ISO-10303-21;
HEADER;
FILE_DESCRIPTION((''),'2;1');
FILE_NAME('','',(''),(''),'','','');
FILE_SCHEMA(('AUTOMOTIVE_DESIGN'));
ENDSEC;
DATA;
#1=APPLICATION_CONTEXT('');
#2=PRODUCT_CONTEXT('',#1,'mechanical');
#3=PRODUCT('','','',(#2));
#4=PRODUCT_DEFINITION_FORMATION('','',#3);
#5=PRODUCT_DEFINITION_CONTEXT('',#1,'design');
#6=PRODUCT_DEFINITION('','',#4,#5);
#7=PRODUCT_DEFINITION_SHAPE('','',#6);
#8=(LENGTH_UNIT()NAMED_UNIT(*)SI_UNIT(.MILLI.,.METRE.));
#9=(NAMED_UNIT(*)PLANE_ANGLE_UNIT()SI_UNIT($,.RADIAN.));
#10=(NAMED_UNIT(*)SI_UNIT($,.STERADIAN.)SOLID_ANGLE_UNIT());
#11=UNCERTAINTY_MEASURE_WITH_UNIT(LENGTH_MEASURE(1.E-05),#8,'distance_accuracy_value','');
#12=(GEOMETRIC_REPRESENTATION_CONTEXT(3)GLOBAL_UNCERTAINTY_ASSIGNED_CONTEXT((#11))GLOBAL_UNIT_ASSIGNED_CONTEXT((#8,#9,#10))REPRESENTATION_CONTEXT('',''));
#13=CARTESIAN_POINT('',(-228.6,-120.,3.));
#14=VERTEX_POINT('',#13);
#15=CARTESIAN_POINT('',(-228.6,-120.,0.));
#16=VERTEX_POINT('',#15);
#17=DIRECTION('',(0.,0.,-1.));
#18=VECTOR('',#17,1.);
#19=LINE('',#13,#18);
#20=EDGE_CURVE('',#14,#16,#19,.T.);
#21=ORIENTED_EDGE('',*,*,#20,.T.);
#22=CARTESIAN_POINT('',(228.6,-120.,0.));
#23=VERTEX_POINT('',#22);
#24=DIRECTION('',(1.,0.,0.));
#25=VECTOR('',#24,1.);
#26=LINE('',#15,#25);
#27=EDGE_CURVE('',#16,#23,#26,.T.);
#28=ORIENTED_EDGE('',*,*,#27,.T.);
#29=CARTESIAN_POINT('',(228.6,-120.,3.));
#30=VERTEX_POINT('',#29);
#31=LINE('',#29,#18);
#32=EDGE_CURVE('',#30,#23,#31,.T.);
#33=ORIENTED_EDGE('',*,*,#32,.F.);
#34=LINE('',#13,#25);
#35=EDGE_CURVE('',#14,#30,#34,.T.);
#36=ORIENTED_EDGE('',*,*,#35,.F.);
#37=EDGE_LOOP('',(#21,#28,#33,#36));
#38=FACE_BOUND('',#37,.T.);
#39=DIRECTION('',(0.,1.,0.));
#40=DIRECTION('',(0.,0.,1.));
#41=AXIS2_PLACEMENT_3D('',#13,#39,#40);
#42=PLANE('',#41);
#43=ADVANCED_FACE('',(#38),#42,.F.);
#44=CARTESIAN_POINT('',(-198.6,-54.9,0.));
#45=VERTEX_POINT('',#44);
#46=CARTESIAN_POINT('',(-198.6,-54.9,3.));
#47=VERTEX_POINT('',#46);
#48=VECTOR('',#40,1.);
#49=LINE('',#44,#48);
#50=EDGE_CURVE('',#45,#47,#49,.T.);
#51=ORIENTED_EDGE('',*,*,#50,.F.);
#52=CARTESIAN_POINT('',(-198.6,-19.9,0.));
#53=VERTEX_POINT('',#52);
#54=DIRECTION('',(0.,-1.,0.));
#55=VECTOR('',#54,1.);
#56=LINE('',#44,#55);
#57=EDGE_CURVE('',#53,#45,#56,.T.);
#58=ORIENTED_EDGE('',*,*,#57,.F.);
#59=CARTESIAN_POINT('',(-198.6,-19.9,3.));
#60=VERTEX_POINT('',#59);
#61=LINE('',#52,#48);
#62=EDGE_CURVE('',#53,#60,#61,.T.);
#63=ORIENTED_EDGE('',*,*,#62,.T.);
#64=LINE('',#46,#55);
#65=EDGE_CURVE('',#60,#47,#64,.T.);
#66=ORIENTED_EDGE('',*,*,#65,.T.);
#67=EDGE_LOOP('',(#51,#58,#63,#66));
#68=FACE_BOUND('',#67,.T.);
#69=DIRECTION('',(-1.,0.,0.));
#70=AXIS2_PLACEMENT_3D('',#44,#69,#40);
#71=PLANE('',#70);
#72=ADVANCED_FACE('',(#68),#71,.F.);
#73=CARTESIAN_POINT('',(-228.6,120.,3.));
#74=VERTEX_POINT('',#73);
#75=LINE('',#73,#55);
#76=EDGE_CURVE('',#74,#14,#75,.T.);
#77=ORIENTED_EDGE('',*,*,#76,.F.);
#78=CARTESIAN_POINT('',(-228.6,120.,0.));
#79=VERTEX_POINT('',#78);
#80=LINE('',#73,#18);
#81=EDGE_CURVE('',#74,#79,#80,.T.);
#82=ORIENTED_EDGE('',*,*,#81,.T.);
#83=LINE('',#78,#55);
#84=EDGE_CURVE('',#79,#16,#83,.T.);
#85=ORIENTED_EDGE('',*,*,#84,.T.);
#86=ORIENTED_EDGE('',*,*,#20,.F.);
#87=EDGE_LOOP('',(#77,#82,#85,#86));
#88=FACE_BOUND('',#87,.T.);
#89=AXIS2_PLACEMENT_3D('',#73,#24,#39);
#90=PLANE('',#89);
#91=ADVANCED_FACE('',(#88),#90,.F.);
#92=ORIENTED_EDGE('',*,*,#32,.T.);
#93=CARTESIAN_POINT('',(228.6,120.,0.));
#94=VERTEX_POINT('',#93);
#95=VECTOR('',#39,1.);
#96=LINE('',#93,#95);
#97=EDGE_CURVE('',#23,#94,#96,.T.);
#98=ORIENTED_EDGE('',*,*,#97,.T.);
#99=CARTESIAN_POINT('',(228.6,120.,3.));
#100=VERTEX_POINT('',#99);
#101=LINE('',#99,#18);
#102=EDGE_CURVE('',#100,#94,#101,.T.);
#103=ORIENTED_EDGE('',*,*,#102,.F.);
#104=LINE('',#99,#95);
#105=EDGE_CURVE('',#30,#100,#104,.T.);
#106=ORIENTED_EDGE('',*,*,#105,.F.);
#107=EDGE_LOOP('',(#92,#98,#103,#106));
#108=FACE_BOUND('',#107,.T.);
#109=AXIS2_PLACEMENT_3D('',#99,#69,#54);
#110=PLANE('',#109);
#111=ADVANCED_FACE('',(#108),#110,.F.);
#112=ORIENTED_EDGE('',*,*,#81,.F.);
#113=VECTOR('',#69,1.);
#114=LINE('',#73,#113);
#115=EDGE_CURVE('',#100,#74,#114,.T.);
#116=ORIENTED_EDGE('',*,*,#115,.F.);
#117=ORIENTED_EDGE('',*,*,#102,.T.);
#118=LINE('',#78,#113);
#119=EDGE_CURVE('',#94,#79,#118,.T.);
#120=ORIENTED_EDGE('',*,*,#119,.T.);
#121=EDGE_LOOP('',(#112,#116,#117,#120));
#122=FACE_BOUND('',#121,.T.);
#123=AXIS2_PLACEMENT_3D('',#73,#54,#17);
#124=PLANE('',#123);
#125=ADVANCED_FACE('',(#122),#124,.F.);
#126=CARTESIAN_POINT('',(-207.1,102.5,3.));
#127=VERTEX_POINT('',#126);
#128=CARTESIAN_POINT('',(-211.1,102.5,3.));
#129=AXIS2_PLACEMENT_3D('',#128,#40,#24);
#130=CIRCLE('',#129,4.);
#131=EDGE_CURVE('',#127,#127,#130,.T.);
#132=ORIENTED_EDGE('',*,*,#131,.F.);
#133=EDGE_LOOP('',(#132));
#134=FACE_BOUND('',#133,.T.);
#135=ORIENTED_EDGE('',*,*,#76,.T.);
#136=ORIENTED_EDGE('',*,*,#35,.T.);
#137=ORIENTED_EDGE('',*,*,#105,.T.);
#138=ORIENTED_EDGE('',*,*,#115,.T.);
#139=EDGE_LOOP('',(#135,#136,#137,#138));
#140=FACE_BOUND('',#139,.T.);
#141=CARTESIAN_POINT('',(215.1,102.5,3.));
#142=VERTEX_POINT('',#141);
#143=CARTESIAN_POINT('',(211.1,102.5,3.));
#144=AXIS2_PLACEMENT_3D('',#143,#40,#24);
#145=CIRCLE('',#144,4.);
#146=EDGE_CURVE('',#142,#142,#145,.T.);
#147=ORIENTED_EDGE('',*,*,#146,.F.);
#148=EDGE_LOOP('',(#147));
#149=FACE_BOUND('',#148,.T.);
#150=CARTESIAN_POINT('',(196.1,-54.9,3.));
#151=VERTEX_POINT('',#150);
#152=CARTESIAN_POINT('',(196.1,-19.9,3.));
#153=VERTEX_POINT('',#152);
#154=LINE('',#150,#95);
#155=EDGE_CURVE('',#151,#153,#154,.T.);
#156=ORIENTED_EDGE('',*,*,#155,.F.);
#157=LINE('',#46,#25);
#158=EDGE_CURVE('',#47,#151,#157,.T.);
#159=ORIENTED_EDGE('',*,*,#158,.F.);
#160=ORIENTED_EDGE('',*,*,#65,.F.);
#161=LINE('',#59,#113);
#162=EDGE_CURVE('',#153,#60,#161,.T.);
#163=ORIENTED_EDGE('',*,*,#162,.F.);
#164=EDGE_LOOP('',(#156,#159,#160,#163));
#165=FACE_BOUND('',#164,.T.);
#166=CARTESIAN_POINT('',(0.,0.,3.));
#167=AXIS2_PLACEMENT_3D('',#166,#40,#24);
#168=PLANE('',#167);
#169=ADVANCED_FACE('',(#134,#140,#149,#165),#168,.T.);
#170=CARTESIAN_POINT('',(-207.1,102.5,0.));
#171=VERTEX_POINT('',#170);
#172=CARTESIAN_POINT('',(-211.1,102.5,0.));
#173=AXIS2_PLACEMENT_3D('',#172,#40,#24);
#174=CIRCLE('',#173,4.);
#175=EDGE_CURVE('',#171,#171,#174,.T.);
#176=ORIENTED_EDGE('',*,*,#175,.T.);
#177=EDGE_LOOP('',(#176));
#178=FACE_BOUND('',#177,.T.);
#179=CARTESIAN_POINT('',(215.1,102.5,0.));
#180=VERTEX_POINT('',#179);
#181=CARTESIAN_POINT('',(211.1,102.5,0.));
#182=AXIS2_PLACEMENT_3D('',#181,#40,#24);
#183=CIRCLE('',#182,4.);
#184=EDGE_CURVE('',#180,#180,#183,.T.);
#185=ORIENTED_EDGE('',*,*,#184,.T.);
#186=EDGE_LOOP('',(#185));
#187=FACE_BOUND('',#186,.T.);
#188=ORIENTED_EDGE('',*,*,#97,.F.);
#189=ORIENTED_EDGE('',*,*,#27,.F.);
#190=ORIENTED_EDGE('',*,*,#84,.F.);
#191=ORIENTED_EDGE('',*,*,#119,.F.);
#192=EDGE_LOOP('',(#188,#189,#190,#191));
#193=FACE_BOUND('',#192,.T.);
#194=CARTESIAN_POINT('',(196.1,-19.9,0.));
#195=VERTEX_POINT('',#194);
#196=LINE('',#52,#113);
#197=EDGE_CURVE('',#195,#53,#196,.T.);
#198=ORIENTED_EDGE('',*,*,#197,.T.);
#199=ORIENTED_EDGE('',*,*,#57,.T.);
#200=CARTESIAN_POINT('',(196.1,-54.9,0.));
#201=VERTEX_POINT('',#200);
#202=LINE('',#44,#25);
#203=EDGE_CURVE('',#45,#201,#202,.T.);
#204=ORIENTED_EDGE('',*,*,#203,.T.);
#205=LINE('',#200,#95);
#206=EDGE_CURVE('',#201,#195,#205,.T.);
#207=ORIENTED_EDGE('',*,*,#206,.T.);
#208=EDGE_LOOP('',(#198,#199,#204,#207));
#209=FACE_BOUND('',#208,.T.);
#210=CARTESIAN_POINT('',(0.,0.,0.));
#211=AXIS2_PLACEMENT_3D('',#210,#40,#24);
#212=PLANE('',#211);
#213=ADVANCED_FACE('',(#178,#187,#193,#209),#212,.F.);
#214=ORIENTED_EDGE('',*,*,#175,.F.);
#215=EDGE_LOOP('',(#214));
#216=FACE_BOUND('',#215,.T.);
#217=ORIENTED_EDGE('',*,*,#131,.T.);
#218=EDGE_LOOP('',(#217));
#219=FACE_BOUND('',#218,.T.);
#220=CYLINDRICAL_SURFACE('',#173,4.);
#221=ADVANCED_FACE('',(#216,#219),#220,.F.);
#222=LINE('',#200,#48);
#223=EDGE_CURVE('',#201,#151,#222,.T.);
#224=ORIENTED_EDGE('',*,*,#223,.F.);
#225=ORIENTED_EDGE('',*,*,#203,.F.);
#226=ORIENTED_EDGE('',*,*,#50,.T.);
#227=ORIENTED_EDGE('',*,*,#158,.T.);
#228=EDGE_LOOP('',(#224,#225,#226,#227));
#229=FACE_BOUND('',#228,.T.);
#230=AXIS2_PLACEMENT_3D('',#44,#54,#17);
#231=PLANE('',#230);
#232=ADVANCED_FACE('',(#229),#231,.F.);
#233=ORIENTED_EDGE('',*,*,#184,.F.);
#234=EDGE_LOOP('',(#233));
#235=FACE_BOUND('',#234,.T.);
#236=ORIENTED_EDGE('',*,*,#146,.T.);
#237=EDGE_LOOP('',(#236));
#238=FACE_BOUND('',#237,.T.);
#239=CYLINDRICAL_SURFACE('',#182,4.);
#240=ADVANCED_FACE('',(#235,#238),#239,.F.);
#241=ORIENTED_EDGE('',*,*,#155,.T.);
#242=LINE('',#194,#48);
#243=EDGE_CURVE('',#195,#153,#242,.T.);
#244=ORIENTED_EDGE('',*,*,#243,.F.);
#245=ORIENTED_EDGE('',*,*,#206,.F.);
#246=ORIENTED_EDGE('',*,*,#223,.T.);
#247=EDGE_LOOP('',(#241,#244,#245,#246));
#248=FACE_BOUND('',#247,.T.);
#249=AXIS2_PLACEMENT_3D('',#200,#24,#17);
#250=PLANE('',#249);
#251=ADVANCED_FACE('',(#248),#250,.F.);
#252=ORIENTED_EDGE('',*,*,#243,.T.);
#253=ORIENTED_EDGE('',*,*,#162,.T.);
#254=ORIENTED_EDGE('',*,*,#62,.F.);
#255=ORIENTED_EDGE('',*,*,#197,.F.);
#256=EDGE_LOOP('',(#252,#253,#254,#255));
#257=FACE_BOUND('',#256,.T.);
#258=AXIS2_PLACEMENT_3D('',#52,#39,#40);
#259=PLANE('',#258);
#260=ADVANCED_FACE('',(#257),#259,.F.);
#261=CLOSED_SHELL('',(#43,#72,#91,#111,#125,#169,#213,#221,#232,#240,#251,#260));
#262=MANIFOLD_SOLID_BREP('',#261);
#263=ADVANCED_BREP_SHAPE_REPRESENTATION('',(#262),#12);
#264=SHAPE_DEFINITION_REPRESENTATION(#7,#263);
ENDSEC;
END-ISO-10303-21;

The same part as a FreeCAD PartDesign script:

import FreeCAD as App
import Part
import Sketcher
from FreeCAD import Vector

doc = App.newDocument("Part")
body = doc.addObject("PartDesign::Body", "Body")

# Sketch on XY plane
sketch1 = body.newObject("Sketcher::SketchObject", "Sketch")
sketch1.AttachmentSupport = (doc.getObject("XY_Plane"), [""])
sketch1.MapMode = "FlatFace"
sketch1.addGeometry([
    Part.LineSegment(Vector(-228.6, 120, 0), Vector(-228.6, -120, 0)),
    Part.LineSegment(Vector(-228.6, -120, 0), Vector(228.6, -120, 0)),
    Part.LineSegment(Vector(228.6, -120, 0), Vector(228.6, 120, 0)),
    Part.LineSegment(Vector(228.6, 120, 0), Vector(-228.6, 120, 0)),
], False)
sketch1.addConstraint([
    Sketcher.Constraint("Coincident", 0, 2, 1, 1),
    Sketcher.Constraint("Coincident", 1, 2, 2, 1),
    Sketcher.Constraint("Coincident", 2, 2, 3, 1),
    Sketcher.Constraint("Coincident", 3, 2, 0, 1),
    Sketcher.Constraint("Vertical", 0),
    Sketcher.Constraint("Horizontal", 1),
    Sketcher.Constraint("Vertical", 2),
    Sketcher.Constraint("Horizontal", 3),
    Sketcher.Constraint("Symmetric", 0, 2, 2, 2, -1, 1),
    Sketcher.Constraint("DistanceY", 0, 2, 0, 1, 240.0),
    Sketcher.Constraint("DistanceX", 1, 1, 1, 2, 457.2),
])
pad1 = body.newObject("PartDesign::Pad", "Pad")
pad1.Profile = sketch1
pad1.Length = 3

# Sketch on XY plane
sketch2 = body.newObject("Sketcher::SketchObject", "Sketch001")
sketch2.AttachmentSupport = (doc.getObject("XY_Plane"), [""])
sketch2.MapMode = "FlatFace"
sketch2.AttachmentOffset = App.Placement(Vector(0, 0, 3), App.Rotation())
sketch2.addGeometry([
    Part.Circle(Vector(-211.1, 102.5, 0), Vector(0, 0, 1), 4),
    Part.Circle(Vector(211.1, 102.5, 0), Vector(0, 0, 1), 4),
], False)
sketch2.addConstraint([
    Sketcher.Constraint("Equal", 0, 1),
    Sketcher.Constraint("Symmetric", 0, 3, 1, 3, -2),
    Sketcher.Constraint("Diameter", 0, 8.0),
    Sketcher.Constraint("DistanceX", 0, 3, -1, 1, 211.1),
    Sketcher.Constraint("DistanceY", -1, 1, 0, 3, 102.5),
])
pocket1 = body.newObject("PartDesign::Pocket", "Pocket")
pocket1.Profile = sketch2
pocket1.Type = "ThroughAll"

# Sketch on XY plane
sketch3 = body.newObject("Sketcher::SketchObject", "Sketch002")
sketch3.AttachmentSupport = (doc.getObject("XY_Plane"), [""])
sketch3.MapMode = "FlatFace"
sketch3.AttachmentOffset = App.Placement(Vector(0, 0, 3), App.Rotation())
sketch3.addGeometry([
    Part.LineSegment(Vector(-198.6, -19.9, 0), Vector(-198.6, -54.9, 0)),
    Part.LineSegment(Vector(-198.6, -54.9, 0), Vector(196.1, -54.9, 0)),
    Part.LineSegment(Vector(196.1, -54.9, 0), Vector(196.1, -19.9, 0)),
    Part.LineSegment(Vector(196.1, -19.9, 0), Vector(-198.6, -19.9, 0)),
], False)
sketch3.addConstraint([
    Sketcher.Constraint("Coincident", 0, 2, 1, 1),
    Sketcher.Constraint("Coincident", 1, 2, 2, 1),
    Sketcher.Constraint("Coincident", 2, 2, 3, 1),
    Sketcher.Constraint("Coincident", 3, 2, 0, 1),
    Sketcher.Constraint("Vertical", 0),
    Sketcher.Constraint("Horizontal", 1),
    Sketcher.Constraint("Vertical", 2),
    Sketcher.Constraint("Horizontal", 3),
    Sketcher.Constraint("DistanceY", 0, 2, 0, 1, 35.0),
    Sketcher.Constraint("DistanceX", 1, 1, 1, 2, 394.7),
    Sketcher.Constraint("DistanceX", 0, 2, -1, 1, 198.6),
    Sketcher.Constraint("DistanceY", 0, 2, -1, 1, 54.9),
])
pocket2 = body.newObject("PartDesign::Pocket", "Pocket001")
pocket2.Profile = sketch3
pocket2.Type = "ThroughAll"

doc.recompute()
